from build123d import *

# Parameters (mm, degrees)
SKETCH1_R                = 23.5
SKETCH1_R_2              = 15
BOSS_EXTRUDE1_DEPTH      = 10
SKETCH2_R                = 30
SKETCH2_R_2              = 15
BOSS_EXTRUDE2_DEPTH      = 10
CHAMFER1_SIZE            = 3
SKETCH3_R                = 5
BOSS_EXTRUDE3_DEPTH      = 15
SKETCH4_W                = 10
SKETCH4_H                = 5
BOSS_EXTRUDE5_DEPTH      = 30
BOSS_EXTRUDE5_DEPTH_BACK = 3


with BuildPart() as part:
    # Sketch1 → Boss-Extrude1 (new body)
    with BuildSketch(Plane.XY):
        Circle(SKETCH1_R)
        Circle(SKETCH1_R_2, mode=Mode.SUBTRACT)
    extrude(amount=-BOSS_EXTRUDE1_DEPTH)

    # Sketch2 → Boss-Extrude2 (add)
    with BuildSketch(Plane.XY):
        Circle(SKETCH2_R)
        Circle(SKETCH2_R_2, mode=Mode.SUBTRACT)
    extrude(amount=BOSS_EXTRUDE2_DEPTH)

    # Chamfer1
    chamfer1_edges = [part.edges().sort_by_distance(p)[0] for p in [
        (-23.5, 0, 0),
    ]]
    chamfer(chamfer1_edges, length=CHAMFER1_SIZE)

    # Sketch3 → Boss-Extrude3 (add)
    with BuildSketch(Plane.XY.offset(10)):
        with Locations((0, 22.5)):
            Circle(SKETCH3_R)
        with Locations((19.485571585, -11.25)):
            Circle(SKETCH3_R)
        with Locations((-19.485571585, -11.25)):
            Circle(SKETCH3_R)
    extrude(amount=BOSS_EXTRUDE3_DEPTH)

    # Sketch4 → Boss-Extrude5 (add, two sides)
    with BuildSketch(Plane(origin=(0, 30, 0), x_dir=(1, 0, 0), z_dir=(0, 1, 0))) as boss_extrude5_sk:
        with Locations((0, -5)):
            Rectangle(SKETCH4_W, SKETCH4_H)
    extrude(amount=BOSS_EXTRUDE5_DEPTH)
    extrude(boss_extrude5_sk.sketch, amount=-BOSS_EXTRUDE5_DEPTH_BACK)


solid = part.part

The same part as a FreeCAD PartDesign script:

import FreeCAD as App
import Part
import Sketcher

V = App.Vector
Q = App.Units.Quantity


def edges_at(feature, points):
    """Names of the edges that pass closest to the given points."""
    edges = feature.Shape.Edges
    near = lambda p: min(range(len(edges)), key=lambda i: edges[i].distToShape(Part.Vertex(*p))[0])
    return sorted({f"Edge{near(p) + 1}" for p in points})

doc = App.newDocument("Part")
body = doc.addObject("PartDesign::Body", "Body")

# Sketch on XY plane
sketch1 = doc.addObject("Sketcher::SketchObject", "Sketch")
body.addObject(sketch1)
sketch1.AttachmentSupport = (doc.XY_Plane, [""])
sketch1.MapMode = "FlatFace"
sketch1.addGeometry(Part.Circle(V(0, 0, 0), V(0, 0, 1), 24), False)
sketch1.addGeometry(Part.Circle(V(0, 0, 0), V(0, 0, 1), 15), False)
sketch1.addConstraint(Sketcher.Constraint("Coincident", 0, 3, -1, 1))
sketch1.addConstraint(Sketcher.Constraint("Coincident", 1, 3, -1, 1))
sketch1.addConstraint(Sketcher.Constraint("Diameter", 0, Q("47 mm")))
sketch1.addConstraint(Sketcher.Constraint("Diameter", 1, Q("30 mm")))
pad1 = doc.addObject("PartDesign::Pad", "Pad")
body.addObject(pad1)
pad1.Profile = sketch1
pad1.Length = 10
pad1.Reversed = True

# Sketch on XY plane
sketch2 = doc.addObject("Sketcher::SketchObject", "Sketch001")
body.addObject(sketch2)
sketch2.AttachmentSupport = (doc.XY_Plane, [""])
sketch2.MapMode = "FlatFace"
sketch2.addGeometry(Part.Circle(V(0, 0, 0), V(0, 0, 1), 30), False)
sketch2.addGeometry(Part.Circle(V(0, 0, 0), V(0, 0, 1), 15), False)
sketch2.addConstraint(Sketcher.Constraint("Coincident", 0, 3, -1, 1))
sketch2.addConstraint(Sketcher.Constraint("Coincident", 1, 3, -1, 1))
sketch2.addConstraint(Sketcher.Constraint("Diameter", 0, Q("60 mm")))
sketch2.addConstraint(Sketcher.Constraint("Diameter", 1, Q("30 mm")))
pad2 = doc.addObject("PartDesign::Pad", "Pad001")
body.addObject(pad2)
pad2.Profile = sketch2
pad2.Length = 10
doc.recompute()

chamfer = doc.addObject("PartDesign::Chamfer", "Chamfer")
body.addObject(chamfer)
chamfer.Base = (pad2, edges_at(pad2, [(-23.5, 0, 0)]))
chamfer.Size = 3

# Sketch on XY plane
sketch3 = doc.addObject("Sketcher::SketchObject", "Sketch002")
body.addObject(sketch3)
sketch3.AttachmentSupport = (doc.XY_Plane, [""])
sketch3.MapMode = "FlatFace"
sketch3.AttachmentOffset = App.Placement(V(0, 0, 10), App.Rotation())
sketch3.addGeometry(Part.Circle(V(0, 22, 0), V(0, 0, 1), 5), False)
sketch3.addGeometry(Part.Circle(V(19, -11, 0), V(0, 0, 1), 5), False)
sketch3.addGeometry(Part.Circle(V(-19, -11, 0), V(0, 0, 1), 5), False)
sketch3.addConstraint(Sketcher.Constraint("Equal", 0, 1))
sketch3.addConstraint(Sketcher.Constraint("Equal", 1, 2))
sketch3.addConstraint(Sketcher.Constraint("Symmetric", 1, 3, 2, 3, -2))
sketch3.addConstraint(Sketcher.Constraint("PointOnObject", 0, 3, -2))
sketch3.addConstraint(Sketcher.Constraint("Diameter", 0, Q("10 mm")))
sketch3.addConstraint(Sketcher.Constraint("DistanceY", -1, 1, 0, 3, Q("22.5 mm")))
sketch3.addConstraint(Sketcher.Constraint("DistanceY", 1, 3, -1, 1, Q("11.25 mm")))
sketch3.addConstraint(Sketcher.Constraint("DistanceX", -1, 1, 1, 3, Q("19.485572 mm")))
pad3 = doc.addObject("PartDesign::Pad", "Pad002")
body.addObject(pad3)
pad3.Profile = sketch3
pad3.Length = 15

# Sketch on XZ plane
sketch4 = doc.addObject("Sketcher::SketchObject", "Sketch003")
body.addObject(sketch4)
sketch4.AttachmentSupport = (doc.XZ_Plane, [""])
sketch4.MapMode = "FlatFace"
sketch4.AttachmentOffset = App.Placement(V(0, 0, -30), App.Rotation())
sketch4.addGeometry(Part.LineSegment(V(-5, 2, 0), V(-5, 8, 0)), False)
sketch4.addGeometry(Part.LineSegment(V(-5, 8, 0), V(5, 8, 0)), False)
sketch4.addGeometry(Part.LineSegment(V(5, 8, 0), V(5, 2, 0)), False)
sketch4.addGeometry(Part.LineSegment(V(5, 2, 0), V(-5, 2, 0)), False)
sketch4.addConstraint(Sketcher.Constraint("Coincident", 0, 2, 1, 1))
sketch4.addConstraint(Sketcher.Constraint("Coincident", 1, 2, 2, 1))
sketch4.addConstraint(Sketcher.Constraint("Coincident", 2, 2, 3, 1))
sketch4.addConstraint(Sketcher.Constraint("Coincident", 3, 2, 0, 1))
sketch4.addConstraint(Sketcher.Constraint("Vertical", 0))
sketch4.addConstraint(Sketcher.Constraint("Horizontal", 1))
sketch4.addConstraint(Sketcher.Constraint("Vertical", 2))
sketch4.addConstraint(Sketcher.Constraint("Horizontal", 3))
sketch4.addConstraint(Sketcher.Constraint("DistanceX", 1, 1, 1, 2, Q("10 mm")))
sketch4.addConstraint(Sketcher.Constraint("DistanceY", 0, 1, 0, 2, Q("5 mm")))
sketch4.addConstraint(Sketcher.Constraint("DistanceX", 0, 2, -1, 1, Q("5 mm")))
sketch4.addConstraint(Sketcher.Constraint("DistanceY", -1, 1, 0, 2, Q("7.5 mm")))
pad4 = doc.addObject("PartDesign::Pad", "Pad003")
body.addObject(pad4)
pad4.Profile = sketch4
pad4.Type = "TwoLengths"
pad4.Length = 30
pad4.Length2 = 3
pad4.Reversed = True

doc.recompute()
